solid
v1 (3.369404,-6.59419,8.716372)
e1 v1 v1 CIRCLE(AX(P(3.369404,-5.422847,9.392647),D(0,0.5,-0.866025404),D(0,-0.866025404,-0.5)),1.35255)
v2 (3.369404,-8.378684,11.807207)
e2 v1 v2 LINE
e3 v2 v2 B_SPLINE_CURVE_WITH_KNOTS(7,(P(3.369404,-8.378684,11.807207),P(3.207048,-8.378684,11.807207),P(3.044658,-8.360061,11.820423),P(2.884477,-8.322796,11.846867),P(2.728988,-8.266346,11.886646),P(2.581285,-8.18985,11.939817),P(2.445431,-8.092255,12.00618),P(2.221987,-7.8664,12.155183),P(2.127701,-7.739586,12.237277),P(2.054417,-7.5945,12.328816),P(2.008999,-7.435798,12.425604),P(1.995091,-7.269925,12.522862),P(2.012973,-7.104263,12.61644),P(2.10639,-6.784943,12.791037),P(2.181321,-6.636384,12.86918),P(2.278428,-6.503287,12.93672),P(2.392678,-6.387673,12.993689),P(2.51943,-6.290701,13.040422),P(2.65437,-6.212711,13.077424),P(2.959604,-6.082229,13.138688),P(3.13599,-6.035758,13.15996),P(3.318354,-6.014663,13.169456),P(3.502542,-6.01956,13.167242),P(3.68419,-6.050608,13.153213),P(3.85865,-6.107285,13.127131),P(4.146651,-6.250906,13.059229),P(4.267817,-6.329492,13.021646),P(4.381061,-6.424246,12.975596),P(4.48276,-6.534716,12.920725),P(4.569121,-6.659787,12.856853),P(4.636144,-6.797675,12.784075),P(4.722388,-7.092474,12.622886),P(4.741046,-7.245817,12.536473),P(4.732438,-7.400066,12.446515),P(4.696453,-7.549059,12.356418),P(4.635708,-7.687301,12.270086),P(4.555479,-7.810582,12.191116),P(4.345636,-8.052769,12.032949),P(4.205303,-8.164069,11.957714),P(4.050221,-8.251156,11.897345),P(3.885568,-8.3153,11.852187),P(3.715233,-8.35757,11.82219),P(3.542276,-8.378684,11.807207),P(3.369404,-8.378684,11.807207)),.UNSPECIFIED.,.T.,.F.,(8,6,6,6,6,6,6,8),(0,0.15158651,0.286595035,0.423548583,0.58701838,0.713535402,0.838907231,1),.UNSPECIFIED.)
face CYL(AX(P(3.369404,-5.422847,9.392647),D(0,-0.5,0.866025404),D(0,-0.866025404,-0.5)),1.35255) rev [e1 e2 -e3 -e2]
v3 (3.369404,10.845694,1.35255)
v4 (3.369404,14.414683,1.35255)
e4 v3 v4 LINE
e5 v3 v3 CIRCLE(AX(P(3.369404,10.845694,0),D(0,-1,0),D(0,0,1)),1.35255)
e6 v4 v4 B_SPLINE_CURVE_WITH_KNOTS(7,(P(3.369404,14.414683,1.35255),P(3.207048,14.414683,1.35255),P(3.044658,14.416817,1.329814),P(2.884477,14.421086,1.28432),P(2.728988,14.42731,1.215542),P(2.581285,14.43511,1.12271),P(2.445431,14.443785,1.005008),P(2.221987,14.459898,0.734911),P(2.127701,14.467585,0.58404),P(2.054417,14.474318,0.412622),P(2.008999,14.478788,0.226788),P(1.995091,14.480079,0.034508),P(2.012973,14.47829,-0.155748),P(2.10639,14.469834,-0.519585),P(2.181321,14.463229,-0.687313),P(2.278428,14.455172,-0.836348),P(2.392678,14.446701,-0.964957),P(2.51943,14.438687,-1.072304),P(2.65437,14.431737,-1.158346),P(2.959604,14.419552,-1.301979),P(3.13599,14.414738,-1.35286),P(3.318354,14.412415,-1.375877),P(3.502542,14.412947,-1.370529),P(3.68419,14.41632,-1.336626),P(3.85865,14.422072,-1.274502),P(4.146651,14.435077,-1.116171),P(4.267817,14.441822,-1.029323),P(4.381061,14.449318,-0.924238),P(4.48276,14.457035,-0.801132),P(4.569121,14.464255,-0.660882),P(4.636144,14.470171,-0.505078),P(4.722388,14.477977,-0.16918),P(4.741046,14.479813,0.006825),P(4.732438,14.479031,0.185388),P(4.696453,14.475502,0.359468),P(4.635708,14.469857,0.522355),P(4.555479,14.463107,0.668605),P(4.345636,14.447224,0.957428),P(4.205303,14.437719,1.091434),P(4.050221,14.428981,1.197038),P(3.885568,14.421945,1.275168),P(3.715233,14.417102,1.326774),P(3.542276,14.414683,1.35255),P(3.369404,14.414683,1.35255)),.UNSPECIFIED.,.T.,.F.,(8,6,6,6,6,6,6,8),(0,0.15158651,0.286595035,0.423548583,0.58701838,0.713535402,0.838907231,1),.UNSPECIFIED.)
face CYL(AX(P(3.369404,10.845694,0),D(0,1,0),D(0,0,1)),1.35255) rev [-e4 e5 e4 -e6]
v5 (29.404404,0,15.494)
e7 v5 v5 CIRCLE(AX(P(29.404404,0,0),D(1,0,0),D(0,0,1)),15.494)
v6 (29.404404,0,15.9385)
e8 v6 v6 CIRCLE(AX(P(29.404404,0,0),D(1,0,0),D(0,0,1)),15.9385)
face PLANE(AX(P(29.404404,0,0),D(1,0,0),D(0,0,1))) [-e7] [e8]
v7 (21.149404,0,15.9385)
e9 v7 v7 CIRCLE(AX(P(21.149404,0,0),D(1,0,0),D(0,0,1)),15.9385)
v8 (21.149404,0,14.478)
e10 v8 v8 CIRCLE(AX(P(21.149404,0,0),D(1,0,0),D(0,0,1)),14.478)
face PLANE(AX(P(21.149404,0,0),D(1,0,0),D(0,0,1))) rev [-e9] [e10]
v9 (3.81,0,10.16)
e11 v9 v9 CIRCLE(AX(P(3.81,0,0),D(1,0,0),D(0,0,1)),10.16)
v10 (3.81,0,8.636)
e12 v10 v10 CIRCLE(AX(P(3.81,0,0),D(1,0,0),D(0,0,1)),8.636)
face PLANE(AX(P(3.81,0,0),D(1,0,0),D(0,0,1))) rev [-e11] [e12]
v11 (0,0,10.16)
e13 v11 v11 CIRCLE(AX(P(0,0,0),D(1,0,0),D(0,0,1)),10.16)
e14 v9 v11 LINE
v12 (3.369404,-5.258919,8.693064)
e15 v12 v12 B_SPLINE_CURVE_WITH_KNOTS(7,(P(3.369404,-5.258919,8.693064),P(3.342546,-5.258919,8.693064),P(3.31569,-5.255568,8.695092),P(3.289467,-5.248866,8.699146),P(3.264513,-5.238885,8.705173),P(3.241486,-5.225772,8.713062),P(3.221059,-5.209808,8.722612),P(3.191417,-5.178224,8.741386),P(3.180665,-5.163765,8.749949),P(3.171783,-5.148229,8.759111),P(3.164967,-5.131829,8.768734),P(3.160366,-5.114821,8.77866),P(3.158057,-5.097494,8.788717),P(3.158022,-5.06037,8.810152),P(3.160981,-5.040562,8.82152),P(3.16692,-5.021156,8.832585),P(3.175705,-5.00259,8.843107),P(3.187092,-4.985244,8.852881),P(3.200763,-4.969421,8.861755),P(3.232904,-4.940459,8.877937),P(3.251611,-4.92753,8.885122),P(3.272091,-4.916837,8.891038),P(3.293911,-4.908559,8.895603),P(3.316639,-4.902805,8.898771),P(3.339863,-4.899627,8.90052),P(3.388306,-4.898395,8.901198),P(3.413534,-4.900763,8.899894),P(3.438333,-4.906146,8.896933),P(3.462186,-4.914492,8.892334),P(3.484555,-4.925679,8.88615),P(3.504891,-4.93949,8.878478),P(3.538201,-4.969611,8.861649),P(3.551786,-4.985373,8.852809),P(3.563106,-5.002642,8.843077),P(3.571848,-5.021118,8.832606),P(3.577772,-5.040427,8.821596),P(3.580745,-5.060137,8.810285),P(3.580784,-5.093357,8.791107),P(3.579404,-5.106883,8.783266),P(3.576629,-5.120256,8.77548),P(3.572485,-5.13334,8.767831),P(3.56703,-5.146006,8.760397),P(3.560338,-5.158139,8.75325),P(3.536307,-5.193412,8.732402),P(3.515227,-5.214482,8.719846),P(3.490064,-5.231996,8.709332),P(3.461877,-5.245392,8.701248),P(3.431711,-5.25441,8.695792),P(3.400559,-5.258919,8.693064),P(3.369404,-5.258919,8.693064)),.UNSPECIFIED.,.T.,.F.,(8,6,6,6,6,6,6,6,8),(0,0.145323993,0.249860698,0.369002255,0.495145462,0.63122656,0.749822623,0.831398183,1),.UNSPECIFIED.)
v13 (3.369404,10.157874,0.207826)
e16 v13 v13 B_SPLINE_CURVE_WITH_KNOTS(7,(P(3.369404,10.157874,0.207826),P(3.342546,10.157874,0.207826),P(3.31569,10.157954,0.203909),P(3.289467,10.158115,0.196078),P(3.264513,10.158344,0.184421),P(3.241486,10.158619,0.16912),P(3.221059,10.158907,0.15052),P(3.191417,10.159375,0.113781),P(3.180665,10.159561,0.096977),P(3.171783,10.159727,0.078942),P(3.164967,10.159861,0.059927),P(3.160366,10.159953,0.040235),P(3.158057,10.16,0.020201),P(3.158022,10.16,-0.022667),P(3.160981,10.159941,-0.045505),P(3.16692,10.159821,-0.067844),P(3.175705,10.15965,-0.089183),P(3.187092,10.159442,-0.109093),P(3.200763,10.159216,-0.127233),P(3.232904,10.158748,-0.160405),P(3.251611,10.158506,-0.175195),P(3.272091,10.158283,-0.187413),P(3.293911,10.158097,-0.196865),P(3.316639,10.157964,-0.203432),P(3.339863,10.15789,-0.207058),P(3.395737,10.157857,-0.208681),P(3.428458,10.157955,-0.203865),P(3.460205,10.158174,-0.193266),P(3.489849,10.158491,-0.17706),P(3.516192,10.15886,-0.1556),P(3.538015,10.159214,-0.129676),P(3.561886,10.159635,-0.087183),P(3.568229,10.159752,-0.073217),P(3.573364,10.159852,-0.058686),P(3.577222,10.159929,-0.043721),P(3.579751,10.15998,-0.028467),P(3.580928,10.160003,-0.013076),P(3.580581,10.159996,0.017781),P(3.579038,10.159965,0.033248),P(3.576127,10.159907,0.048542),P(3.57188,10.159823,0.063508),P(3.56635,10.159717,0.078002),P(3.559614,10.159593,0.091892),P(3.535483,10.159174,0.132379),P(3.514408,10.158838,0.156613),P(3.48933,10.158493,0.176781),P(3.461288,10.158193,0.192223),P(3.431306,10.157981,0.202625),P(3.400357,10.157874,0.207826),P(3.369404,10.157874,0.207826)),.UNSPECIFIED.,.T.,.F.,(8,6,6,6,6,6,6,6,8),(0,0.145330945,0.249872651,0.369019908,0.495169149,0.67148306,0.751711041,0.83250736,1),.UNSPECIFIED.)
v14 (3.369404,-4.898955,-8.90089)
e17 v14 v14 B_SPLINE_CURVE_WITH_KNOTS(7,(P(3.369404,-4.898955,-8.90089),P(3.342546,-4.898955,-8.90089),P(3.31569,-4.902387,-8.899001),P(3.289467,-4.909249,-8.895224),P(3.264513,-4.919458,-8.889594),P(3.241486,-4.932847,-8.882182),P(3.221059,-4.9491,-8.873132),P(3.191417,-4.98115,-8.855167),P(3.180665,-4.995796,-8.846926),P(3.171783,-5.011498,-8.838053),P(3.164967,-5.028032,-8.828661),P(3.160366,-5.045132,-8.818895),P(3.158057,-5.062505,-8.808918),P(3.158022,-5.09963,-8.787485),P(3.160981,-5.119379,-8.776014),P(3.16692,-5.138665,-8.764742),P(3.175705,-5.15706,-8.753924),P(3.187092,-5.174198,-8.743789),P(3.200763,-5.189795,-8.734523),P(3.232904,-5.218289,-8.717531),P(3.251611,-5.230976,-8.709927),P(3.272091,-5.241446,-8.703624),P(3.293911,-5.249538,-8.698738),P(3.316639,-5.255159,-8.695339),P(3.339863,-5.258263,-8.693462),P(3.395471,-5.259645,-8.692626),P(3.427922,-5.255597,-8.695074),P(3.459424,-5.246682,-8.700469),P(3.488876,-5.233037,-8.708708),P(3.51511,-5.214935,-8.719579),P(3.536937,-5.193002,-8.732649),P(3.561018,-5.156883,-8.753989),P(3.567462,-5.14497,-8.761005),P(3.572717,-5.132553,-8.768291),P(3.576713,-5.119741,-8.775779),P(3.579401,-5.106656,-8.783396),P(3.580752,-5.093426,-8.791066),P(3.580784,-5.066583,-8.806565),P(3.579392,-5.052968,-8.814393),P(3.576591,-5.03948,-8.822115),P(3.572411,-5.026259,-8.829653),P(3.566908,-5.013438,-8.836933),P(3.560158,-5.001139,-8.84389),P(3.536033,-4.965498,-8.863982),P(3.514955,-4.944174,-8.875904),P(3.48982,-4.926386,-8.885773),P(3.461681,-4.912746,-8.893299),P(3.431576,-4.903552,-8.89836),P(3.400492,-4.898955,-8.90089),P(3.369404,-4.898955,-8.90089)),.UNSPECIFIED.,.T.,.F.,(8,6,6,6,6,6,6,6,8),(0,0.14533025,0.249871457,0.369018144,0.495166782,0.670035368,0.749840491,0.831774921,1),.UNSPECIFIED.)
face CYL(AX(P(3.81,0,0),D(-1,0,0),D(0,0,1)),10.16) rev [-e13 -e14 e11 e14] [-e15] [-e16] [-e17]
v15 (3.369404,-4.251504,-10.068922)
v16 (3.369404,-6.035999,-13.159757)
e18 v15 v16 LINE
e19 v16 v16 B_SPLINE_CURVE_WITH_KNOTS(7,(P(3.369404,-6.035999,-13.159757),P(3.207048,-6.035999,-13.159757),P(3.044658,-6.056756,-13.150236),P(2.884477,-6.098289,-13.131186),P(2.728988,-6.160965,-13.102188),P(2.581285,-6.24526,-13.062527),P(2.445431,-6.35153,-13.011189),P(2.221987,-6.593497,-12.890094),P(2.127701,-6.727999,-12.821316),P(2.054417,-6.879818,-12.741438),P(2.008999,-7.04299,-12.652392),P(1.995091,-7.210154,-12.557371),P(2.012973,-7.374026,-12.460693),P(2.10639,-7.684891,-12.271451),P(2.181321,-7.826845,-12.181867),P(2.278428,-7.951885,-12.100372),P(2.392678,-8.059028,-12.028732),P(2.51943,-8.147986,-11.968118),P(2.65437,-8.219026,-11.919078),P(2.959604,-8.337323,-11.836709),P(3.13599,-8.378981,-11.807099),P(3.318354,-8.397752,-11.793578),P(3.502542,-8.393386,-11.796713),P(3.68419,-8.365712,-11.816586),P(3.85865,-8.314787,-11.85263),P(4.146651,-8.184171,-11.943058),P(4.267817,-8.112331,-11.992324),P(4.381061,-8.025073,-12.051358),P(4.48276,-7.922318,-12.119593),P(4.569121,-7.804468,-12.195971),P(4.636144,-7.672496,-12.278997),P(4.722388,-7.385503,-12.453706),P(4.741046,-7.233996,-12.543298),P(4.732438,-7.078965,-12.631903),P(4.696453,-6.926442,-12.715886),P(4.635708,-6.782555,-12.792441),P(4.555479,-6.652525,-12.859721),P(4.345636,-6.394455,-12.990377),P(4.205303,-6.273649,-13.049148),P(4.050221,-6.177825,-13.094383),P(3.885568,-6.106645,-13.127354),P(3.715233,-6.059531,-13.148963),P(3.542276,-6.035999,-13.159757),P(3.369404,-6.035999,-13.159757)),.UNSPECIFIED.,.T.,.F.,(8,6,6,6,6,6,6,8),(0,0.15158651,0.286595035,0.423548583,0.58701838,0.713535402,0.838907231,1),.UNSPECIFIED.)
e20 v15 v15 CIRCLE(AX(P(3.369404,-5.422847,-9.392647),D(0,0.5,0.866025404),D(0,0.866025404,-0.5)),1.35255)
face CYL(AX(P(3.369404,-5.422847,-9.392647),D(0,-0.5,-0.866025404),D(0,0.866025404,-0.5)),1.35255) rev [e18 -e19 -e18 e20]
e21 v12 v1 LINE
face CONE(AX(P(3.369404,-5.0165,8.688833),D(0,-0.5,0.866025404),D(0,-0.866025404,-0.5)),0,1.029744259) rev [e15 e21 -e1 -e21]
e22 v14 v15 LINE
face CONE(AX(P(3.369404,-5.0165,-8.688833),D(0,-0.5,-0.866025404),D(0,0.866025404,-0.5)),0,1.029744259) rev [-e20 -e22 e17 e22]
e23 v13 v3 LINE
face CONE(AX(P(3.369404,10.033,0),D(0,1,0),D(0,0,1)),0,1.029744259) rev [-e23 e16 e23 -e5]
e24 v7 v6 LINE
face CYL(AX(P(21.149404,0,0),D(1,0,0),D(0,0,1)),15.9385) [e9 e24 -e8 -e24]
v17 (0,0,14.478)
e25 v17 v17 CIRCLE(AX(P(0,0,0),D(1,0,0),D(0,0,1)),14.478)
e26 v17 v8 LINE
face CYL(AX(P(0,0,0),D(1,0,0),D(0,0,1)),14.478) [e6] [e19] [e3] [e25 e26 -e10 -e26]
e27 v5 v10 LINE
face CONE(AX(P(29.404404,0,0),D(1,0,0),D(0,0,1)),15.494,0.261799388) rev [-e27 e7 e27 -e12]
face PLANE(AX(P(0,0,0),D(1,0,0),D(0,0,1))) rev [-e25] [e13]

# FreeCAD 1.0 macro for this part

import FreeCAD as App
import Part
import Sketcher
Q = App.Units.Quantity


def add_polygon(sketch, points):
    """Adds a closed chain of lines whose ends are joined by coincident constraints."""
    first, n = sketch.GeometryCount, len(points)
    for a, b in zip(points, points[1:] + points[:1]):
        sketch.addGeometry(Part.LineSegment(App.Vector(*a, 0), App.Vector(*b, 0)), False)
    for i in range(n):
        sketch.addConstraint(Sketcher.Constraint("Coincident", first + i, 2, first + (i + 1) % n, 1))

doc = App.newDocument("Part")
body = doc.addObject("PartDesign::Body", "Body")

# Sketch on XY plane
sketch1 = body.newObject("Sketcher::SketchObject", "Sketch")
sketch1.AttachmentSupport = (doc.getObject("XY_Plane"), [""])
sketch1.MapMode = "FlatFace"
add_polygon(sketch1, [(21.15, 14.48), (0, 14.48), (0, 10.16), (3.81, 10.16), (3.81, 8.64), (29.4, 15.49), (29.4, 15.94), (21.15, 15.94)])  # lines 0-7
sketch1.addConstraint([
    Sketcher.Constraint("Horizontal", 0),
    Sketcher.Constraint("Vertical", 1),
    Sketcher.Constraint("Horizontal", 2),
    Sketcher.Constraint("Vertical", 3),
    Sketcher.Constraint("Vertical", 5),
    Sketcher.Constraint("Horizontal", 6),
    Sketcher.Constraint("Vertical", 7),
    Sketcher.Constraint("PointOnObject", 0, 2, -2),
    Sketcher.Constraint("Angle", 4, Q("15 deg")),
    Sketcher.Constraint("DistanceX", 2, 1, 2, 2, Q("0.15 in")),
    Sketcher.Constraint("DistanceY", 1, 2, 1, 1, Q("0.17 in")),
    Sketcher.Constraint("DistanceY", 3, 2, 3, 1, Q("0.06 in")),
    Sketcher.Constraint("DistanceY", -1, 1, 1, 2, Q("0.4 in")),
    Sketcher.Constraint("DistanceX", 6, 2, 6, 1, Q("0.325 in")),
    Sketcher.Constraint("DistanceY", -1, 1, 4, 2, Q("0.61 in")),
    Sketcher.Constraint("DistanceY", 5, 1, 5, 2, Q("0.0175 in")),
])
revolution = body.newObject("PartDesign::Revolution", "Revolution")
revolution.Profile = sketch1
revolution.ReferenceAxis = (sketch1, ["H_Axis"])
revolution.Angle = 360

# Sketch on YZ plane
sketch2 = body.newObject("Sketcher::SketchObject", "Sketch001")
sketch2.AttachmentSupport = (doc.getObject("YZ_Plane"), [""])
sketch2.MapMode = "FlatFace"
sketch2.AttachmentOffset = App.Placement(App.Vector(0, 0, 3.369404), App.Rotation())
add_polygon(sketch2, [(10, 0), (14.5, 0), (14.5, 1.4), (10.8, 1.4)])  # lines 0-3
sketch2.addConstraint([
    Sketcher.Constraint("Horizontal", 0),
    Sketcher.Constraint("Vertical", 1),
    Sketcher.Constraint("Horizontal", 2),
    Sketcher.Constraint("PointOnObject", 0, 2, -1),
    Sketcher.Constraint("Angle", 3, Q("-121 deg")),
    Sketcher.Constraint("DistanceX", 0, 1, 0, 2, Q("0.175 in")),
    Sketcher.Constraint("DistanceX", -1, 1, 0, 2, Q("0.57 in")),
    Sketcher.Constraint("DistanceY", 1, 1, 1, 2, Q("1.35255 mm")),
])
groove = body.newObject("PartDesign::Groove", "Groove")
groove.Profile = sketch2
groove.ReferenceAxis = (sketch2, ["H_Axis"])
groove.Angle = 360
doc.recompute()

polarpattern = body.newObject("PartDesign::PolarPattern", "PolarPattern")
polarpattern.Originals = [groove]
polarpattern.Axis = (doc.getObject("X_Axis"), [""])
polarpattern.Angle = 360
polarpattern.Occurrences = 3
body.Tip = polarpattern

doc.recompute()
